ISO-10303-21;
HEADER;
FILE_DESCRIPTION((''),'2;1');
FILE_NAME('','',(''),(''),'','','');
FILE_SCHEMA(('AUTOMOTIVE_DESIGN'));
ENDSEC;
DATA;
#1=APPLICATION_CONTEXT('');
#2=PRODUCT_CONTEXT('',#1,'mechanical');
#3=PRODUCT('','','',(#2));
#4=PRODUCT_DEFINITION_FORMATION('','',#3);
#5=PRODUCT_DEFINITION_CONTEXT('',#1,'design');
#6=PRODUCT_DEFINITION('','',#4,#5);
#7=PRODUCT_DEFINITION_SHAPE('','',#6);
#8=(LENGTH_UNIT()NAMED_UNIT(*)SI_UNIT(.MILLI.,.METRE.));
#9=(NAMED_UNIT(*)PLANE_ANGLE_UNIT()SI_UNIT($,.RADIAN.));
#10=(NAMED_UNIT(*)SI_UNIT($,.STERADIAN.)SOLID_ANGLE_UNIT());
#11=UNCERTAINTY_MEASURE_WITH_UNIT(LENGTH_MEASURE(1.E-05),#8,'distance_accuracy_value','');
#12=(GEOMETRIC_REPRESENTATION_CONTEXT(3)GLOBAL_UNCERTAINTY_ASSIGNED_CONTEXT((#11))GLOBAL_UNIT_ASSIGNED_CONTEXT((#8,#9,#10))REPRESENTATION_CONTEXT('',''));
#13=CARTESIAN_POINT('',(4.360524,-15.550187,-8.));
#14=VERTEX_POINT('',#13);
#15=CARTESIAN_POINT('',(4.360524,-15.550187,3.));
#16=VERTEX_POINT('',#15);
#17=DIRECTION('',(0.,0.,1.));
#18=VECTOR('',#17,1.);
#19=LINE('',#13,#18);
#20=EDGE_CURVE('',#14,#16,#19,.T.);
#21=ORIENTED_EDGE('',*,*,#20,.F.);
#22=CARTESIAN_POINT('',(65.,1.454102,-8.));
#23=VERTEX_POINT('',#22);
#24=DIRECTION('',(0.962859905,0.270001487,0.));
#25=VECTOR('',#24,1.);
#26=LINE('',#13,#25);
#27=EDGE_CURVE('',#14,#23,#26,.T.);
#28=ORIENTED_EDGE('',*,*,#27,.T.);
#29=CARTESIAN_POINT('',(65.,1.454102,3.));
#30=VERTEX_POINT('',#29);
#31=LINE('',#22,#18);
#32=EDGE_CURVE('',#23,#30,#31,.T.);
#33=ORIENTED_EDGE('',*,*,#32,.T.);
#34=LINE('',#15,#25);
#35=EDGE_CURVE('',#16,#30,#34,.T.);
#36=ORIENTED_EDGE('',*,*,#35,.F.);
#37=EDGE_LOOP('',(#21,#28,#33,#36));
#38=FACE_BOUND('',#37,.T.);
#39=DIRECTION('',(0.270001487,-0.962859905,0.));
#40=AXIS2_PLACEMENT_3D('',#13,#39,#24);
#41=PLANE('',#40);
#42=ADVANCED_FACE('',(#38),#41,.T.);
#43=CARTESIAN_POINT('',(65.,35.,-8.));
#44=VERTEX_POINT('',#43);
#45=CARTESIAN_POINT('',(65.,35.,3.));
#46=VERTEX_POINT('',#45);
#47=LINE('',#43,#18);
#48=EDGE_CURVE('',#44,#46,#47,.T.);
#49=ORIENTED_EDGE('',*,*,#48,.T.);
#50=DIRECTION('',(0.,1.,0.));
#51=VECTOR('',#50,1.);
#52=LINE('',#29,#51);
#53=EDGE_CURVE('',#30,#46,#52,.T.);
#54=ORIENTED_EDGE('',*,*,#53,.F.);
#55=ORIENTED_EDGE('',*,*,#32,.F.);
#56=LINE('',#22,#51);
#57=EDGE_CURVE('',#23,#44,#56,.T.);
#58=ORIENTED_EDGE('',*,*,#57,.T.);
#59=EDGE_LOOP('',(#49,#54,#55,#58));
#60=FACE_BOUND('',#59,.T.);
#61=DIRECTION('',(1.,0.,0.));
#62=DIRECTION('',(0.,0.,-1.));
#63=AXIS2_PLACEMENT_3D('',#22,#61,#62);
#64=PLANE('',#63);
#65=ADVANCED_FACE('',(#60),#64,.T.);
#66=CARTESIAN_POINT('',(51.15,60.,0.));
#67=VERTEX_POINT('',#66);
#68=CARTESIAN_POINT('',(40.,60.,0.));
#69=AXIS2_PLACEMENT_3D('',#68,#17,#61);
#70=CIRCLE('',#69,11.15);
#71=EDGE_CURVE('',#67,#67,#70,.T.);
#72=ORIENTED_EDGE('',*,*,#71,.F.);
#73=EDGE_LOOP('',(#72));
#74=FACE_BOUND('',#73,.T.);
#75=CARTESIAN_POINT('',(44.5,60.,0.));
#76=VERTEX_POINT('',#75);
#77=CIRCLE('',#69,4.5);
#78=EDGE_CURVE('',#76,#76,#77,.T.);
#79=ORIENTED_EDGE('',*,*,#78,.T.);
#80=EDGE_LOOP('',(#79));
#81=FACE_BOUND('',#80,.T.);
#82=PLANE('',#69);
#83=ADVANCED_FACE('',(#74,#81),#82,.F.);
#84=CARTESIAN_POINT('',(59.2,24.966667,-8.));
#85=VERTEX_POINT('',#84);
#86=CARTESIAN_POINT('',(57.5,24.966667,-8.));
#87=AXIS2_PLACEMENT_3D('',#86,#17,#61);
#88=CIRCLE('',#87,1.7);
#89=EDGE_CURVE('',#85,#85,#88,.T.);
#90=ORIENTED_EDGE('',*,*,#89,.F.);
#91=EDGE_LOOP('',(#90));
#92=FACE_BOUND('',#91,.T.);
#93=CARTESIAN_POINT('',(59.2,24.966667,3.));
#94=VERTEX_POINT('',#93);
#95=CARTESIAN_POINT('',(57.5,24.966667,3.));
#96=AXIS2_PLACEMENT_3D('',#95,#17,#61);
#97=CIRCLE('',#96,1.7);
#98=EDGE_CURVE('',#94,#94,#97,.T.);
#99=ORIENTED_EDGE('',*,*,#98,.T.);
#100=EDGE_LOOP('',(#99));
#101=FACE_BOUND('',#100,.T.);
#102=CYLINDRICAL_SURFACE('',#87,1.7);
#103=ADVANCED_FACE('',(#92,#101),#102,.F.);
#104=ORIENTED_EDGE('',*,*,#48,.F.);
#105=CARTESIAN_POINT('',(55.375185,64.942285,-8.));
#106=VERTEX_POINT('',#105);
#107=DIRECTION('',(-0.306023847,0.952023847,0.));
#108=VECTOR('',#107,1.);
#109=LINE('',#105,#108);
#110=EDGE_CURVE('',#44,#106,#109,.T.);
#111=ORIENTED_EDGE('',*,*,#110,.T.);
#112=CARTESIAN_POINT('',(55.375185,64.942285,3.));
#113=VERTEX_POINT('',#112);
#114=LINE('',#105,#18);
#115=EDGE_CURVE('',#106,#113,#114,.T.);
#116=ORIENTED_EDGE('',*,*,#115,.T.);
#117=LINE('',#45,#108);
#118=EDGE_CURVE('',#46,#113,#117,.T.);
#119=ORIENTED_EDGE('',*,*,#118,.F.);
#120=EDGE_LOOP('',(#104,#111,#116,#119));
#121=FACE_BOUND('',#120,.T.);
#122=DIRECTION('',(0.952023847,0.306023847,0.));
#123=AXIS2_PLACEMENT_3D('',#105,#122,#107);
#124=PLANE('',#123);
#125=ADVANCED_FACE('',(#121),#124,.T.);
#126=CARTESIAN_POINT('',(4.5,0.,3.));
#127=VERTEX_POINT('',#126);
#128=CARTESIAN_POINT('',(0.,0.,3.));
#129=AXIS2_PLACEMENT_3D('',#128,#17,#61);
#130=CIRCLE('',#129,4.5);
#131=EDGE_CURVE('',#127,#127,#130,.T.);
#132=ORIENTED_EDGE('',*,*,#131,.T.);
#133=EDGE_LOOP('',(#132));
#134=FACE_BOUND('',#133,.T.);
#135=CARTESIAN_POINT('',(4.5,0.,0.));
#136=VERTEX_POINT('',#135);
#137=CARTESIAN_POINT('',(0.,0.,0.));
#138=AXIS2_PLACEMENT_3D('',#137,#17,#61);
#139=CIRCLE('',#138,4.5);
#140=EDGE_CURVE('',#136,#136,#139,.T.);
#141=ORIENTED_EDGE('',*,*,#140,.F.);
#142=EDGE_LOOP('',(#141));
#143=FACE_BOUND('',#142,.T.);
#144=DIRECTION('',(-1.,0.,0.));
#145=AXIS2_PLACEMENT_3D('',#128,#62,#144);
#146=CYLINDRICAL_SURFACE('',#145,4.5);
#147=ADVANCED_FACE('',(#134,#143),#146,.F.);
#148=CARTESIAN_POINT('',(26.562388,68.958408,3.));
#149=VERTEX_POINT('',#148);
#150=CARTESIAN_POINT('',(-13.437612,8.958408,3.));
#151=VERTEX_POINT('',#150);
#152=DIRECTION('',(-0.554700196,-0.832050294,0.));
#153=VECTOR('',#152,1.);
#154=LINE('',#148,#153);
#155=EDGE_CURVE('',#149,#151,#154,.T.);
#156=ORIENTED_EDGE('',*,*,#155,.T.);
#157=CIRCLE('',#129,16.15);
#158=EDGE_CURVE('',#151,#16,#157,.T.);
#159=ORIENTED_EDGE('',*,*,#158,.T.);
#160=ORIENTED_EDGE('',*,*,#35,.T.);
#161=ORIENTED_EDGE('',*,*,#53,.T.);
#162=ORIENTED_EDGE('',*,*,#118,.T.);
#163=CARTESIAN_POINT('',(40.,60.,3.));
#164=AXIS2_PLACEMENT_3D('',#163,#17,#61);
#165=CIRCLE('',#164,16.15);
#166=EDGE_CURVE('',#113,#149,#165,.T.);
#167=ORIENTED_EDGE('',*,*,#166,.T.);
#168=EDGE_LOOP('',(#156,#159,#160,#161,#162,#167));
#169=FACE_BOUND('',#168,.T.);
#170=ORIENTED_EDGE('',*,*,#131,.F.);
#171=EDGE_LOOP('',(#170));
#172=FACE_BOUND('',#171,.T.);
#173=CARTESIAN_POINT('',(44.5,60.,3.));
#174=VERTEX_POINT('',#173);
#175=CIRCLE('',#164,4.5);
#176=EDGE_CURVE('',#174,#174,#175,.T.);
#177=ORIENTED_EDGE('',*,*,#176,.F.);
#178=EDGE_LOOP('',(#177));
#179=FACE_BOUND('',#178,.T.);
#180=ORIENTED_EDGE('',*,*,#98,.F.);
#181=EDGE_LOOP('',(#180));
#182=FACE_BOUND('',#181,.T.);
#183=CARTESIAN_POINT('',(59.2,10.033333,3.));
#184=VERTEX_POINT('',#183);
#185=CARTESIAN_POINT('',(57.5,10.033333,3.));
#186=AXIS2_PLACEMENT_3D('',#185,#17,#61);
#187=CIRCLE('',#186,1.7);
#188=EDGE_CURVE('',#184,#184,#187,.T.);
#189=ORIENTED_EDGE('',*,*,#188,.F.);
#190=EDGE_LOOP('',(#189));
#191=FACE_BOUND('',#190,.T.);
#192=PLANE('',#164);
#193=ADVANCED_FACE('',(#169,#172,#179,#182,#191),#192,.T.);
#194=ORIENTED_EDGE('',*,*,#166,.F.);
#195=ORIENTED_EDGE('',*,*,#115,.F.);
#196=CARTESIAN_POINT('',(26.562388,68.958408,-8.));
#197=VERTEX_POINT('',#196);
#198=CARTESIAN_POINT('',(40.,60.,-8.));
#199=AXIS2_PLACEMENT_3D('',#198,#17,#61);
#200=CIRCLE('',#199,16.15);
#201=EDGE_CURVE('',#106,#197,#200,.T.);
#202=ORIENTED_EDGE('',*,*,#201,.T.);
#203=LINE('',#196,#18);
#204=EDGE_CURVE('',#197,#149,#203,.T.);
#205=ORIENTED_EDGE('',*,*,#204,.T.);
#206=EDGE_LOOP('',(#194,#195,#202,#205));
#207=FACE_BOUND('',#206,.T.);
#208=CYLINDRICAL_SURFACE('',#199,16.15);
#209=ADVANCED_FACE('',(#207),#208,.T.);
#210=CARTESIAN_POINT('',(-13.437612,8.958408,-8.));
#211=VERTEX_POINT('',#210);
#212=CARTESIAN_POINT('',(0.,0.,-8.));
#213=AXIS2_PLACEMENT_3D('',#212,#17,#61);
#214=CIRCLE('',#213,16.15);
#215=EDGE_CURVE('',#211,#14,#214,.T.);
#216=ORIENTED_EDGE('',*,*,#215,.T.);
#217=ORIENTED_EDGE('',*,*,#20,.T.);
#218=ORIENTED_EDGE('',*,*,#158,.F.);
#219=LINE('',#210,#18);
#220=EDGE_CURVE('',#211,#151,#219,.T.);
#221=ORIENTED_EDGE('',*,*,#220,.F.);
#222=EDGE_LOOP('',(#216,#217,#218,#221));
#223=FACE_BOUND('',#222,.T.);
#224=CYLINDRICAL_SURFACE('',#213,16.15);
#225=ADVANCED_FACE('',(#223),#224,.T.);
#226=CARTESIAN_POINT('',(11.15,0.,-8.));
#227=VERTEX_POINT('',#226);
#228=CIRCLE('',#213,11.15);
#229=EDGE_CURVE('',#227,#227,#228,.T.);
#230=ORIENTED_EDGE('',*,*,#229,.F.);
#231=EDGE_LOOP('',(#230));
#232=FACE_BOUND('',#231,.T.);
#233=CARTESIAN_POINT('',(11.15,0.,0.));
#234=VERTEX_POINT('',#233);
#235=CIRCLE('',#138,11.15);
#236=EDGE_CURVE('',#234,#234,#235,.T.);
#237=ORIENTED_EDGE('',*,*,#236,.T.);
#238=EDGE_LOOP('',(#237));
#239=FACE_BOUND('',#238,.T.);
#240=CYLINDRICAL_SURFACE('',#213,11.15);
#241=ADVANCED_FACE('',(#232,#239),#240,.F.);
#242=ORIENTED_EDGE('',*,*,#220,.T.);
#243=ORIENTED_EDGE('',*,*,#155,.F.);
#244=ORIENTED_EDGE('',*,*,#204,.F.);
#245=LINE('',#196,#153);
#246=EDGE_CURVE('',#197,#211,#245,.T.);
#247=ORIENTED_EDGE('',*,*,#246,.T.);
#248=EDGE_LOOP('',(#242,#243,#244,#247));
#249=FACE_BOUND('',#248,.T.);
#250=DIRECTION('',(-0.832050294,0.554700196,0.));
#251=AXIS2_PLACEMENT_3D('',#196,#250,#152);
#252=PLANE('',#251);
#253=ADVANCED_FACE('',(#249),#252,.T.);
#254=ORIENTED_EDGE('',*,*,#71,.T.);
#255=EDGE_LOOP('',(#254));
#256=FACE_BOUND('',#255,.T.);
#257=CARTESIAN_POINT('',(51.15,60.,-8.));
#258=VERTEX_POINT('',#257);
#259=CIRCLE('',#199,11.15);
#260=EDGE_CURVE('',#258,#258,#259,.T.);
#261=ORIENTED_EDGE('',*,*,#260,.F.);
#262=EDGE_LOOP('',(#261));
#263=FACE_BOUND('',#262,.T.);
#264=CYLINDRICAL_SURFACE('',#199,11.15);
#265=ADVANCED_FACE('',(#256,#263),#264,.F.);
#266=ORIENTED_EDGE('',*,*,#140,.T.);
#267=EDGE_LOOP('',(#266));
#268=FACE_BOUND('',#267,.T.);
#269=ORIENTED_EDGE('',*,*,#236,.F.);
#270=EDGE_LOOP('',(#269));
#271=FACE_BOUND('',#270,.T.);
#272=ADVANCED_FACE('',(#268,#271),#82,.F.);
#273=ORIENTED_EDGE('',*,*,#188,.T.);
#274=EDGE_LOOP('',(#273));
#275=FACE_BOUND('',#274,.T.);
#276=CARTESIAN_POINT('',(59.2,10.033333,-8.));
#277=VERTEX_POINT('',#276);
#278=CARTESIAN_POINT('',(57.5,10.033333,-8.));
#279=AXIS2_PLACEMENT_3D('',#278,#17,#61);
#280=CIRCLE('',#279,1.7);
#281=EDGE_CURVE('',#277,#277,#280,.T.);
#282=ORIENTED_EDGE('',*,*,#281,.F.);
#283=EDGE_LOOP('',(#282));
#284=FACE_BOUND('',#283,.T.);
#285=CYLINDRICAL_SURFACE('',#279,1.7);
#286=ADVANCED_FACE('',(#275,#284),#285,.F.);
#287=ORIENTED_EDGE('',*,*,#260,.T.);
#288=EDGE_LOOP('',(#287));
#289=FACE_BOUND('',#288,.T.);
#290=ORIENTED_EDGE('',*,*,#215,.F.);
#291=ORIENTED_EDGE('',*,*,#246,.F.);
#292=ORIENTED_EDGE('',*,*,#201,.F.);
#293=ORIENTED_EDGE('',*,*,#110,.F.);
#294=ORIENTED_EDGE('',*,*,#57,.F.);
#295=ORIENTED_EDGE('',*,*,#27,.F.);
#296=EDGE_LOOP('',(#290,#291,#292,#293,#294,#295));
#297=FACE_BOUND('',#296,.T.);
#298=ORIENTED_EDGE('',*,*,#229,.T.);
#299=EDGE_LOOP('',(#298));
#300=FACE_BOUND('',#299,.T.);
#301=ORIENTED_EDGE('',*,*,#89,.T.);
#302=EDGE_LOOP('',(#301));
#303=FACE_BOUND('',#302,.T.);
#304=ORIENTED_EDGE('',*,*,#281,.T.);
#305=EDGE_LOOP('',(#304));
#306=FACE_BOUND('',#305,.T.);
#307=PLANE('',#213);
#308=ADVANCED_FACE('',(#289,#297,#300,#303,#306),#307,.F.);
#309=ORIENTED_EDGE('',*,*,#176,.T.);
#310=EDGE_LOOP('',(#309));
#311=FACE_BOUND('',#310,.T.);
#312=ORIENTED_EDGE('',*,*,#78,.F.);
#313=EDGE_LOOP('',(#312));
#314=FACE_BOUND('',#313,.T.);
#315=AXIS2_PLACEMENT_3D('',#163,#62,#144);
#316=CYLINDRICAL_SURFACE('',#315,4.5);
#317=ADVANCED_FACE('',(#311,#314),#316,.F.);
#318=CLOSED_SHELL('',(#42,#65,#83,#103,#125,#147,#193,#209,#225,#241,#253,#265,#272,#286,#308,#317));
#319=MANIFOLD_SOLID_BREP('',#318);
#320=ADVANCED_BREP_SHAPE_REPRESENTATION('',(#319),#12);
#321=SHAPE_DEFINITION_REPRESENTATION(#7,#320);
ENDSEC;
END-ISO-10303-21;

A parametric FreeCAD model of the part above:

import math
import FreeCAD as App
import Part
import Sketcher
Q = App.Units.Quantity

doc = App.newDocument("Part")
body = doc.addObject("PartDesign::Body", "Body")

sketch1 = body.newObject("Sketcher::SketchObject", "Sketch")
sketch1.AttachmentSupport = (doc.getObject("XY_Plane"), [""])
sketch1.MapMode = "FlatFace"
sketch1.addGeometry(Part.LineSegment(App.Vector(65, 1.5, 0), App.Vector(65, 35, 0)), False)
sketch1.addGeometry(Part.LineSegment(App.Vector(65, 35, 0), App.Vector(55.4, 64.9, 0)), False)
sketch1.addGeometry(Part.ArcOfCircle(Part.Circle(App.Vector(40, 60, 0), App.Vector(0, 0, 1), 16.2), math.radians(18), math.radians(146)), False)
sketch1.addGeometry(Part.LineSegment(App.Vector(26.6, 69, 0), App.Vector(-13.4, 9, 0)), False)
sketch1.addGeometry(Part.ArcOfCircle(Part.Circle(App.Vector(0, 0, 0), App.Vector(0, 0, 1), 16.1), math.radians(146), math.radians(286)), False)
sketch1.addGeometry(Part.LineSegment(App.Vector(4.4, -15.6, 0), App.Vector(65, 1.5, 0)), False)
sketch1.addGeometry(Part.Circle(App.Vector(0, 0, 0), App.Vector(0, 0, 1), 11.2), False)
sketch1.addGeometry(Part.Circle(App.Vector(57.5, 10, 0), App.Vector(0, 0, 1), 1.7), False)
sketch1.addGeometry(Part.Circle(App.Vector(57.5, 25, 0), App.Vector(0, 0, 1), 1.7), False)
sketch1.addGeometry(Part.Circle(App.Vector(40, 60, 0), App.Vector(0, 0, 1), 11.2), False)
sketch1.addConstraint(Sketcher.Constraint("Coincident", 0, 2, 1, 1))
sketch1.addConstraint(Sketcher.Constraint("Tangent", 1, 2, 2, 1))
sketch1.addConstraint(Sketcher.Constraint("Tangent", 2, 2, 3, 1))
sketch1.addConstraint(Sketcher.Constraint("Tangent", 3, 2, 4, 1))
sketch1.addConstraint(Sketcher.Constraint("Tangent", 4, 2, 5, 1))
sketch1.addConstraint(Sketcher.Constraint("Coincident", 5, 2, 0, 1))
sketch1.addConstraint(Sketcher.Constraint("Vertical", 0))
sketch1.addConstraint(Sketcher.Constraint("Coincident", 4, 3, -1, 1))
sketch1.addConstraint(Sketcher.Constraint("Coincident", 6, 3, -1, 1))
sketch1.addConstraint(Sketcher.Constraint("Coincident", 9, 3, 2, 3))
sketch1.addConstraint(Sketcher.Constraint("Equal", 2, 4))
sketch1.addConstraint(Sketcher.Constraint("Equal", 7, 8))
sketch1.addConstraint(Sketcher.Constraint("Equal", 6, 9))
sketch1.addConstraint(Sketcher.Constraint("Vertical", 7, 3, 8, 3))
sketch1.addConstraint(Sketcher.Constraint("Diameter", 6, Q("22.3 mm")))
sketch1.addConstraint(Sketcher.Constraint("Diameter", 7, Q("3.4 mm")))
sketch1.addConstraint(Sketcher.Constraint("Radius", 2, Q("16.15 mm")))
sketch1.addConstraint(Sketcher.Constraint("DistanceX", -1, 1, 2, 3, Q("40 mm")))
sketch1.addConstraint(Sketcher.Constraint("DistanceY", -1, 1, 2, 3, Q("60 mm")))
sketch1.addConstraint(Sketcher.Constraint("DistanceX", -1, 1, 0, 2, Q("65 mm")))
sketch1.addConstraint(Sketcher.Constraint("DistanceY", -1, 1, 0, 2, Q("35 mm")))
sketch1.addConstraint(Sketcher.Constraint("DistanceX", -1, 1, 7, 3, Q("57.5 mm")))
sketch1.addConstraint(Sketcher.Constraint("DistanceY", 0, 1, 0, 2, Q("33.545898 mm")))
sketch1.addConstraint(Sketcher.Constraint("DistanceY", 8, 3, 1, 2, Q("39.975618 mm")))
sketch1.addConstraint(Sketcher.Constraint("DistanceY", 7, 3, 1, 2, Q("54.908952 mm")))
pad1 = body.newObject("PartDesign::Pad", "Pad")
pad1.Profile = sketch1
pad1.Length = 8
pad1.Reversed = True

sketch2 = body.newObject("Sketcher::SketchObject", "Sketch001")
sketch2.AttachmentSupport = (doc.getObject("XY_Plane"), [""])
sketch2.MapMode = "FlatFace"
sketch2.AttachmentOffset = App.Placement(App.Vector(0, 0, 3), App.Rotation())
sketch2.addGeometry(Part.LineSegment(App.Vector(4.4, -15.6, 0), App.Vector(65, 1.5, 0)), False)
sketch2.addGeometry(Part.LineSegment(App.Vector(65, 1.5, 0), App.Vector(65, 35, 0)), False)
sketch2.addGeometry(Part.LineSegment(App.Vector(65, 35, 0), App.Vector(55.4, 64.9, 0)), False)
sketch2.addGeometry(Part.ArcOfCircle(Part.Circle(App.Vector(40, 60, 0), App.Vector(0, 0, 1), 16.2), math.radians(18), math.radians(146)), False)
sketch2.addGeometry(Part.LineSegment(App.Vector(26.6, 69, 0), App.Vector(-13.4, 9, 0)), False)
sketch2.addGeometry(Part.ArcOfCircle(Part.Circle(App.Vector(0, 0, 0), App.Vector(0, 0, 1), 16.1), math.radians(146), math.radians(286)), False)
sketch2.addGeometry(Part.Circle(App.Vector(0, 0, 0), App.Vector(0, 0, 1), 4.5), False)
sketch2.addGeometry(Part.Circle(App.Vector(57.5, 10, 0), App.Vector(0, 0, 1), 1.7), False)
sketch2.addGeometry(Part.Circle(App.Vector(57.5, 25, 0), App.Vector(0, 0, 1), 1.7), False)
sketch2.addGeometry(Part.Circle(App.Vector(40, 60, 0), App.Vector(0, 0, 1), 4.5), False)
sketch2.addConstraint(Sketcher.Constraint("Coincident", 0, 2, 1, 1))
sketch2.addConstraint(Sketcher.Constraint("Coincident", 1, 2, 2, 1))
sketch2.addConstraint(Sketcher.Constraint("Tangent", 2, 2, 3, 1))
sketch2.addConstraint(Sketcher.Constraint("Tangent", 3, 2, 4, 1))
sketch2.addConstraint(Sketcher.Constraint("Tangent", 4, 2, 5, 1))
sketch2.addConstraint(Sketcher.Constraint("Tangent", 5, 2, 0, 1))
sketch2.addConstraint(Sketcher.Constraint("Vertical", 1))
sketch2.addConstraint(Sketcher.Constraint("Coincident", 5, 3, -1, 1))
sketch2.addConstraint(Sketcher.Constraint("Coincident", 6, 3, -1, 1))
sketch2.addConstraint(Sketcher.Constraint("Coincident", 9, 3, 3, 3))
sketch2.addConstraint(Sketcher.Constraint("Equal", 3, 5))
sketch2.addConstraint(Sketcher.Constraint("Equal", 7, 8))
sketch2.addConstraint(Sketcher.Constraint("Equal", 6, 9))
sketch2.addConstraint(Sketcher.Constraint("Vertical", 7, 3, 8, 3))
sketch2.addConstraint(Sketcher.Constraint("Diameter", 6, Q("9 mm")))
sketch2.addConstraint(Sketcher.Constraint("Diameter", 7, Q("3.4 mm")))
sketch2.addConstraint(Sketcher.Constraint("Radius", 3, Q("16.15 mm")))
sketch2.addConstraint(Sketcher.Constraint("DistanceX", -1, 1, 3, 3, Q("40 mm")))
sketch2.addConstraint(Sketcher.Constraint("DistanceY", -1, 1, 3, 3, Q("60 mm")))
sketch2.addConstraint(Sketcher.Constraint("DistanceX", -1, 1, 0, 2, Q("65 mm")))
sketch2.addConstraint(Sketcher.Constraint("DistanceY", -1, 1, 1, 2, Q("35 mm")))
sketch2.addConstraint(Sketcher.Constraint("DistanceX", -1, 1, 7, 3, Q("57.5 mm")))
sketch2.addConstraint(Sketcher.Constraint("DistanceY", 1, 1, 1, 2, Q("33.545898 mm")))
sketch2.addConstraint(Sketcher.Constraint("DistanceY", 0, 2, 7, 3, Q("8.579231 mm")))
sketch2.addConstraint(Sketcher.Constraint("DistanceY", 8, 3, 2, 2, Q("39.975618 mm")))
pad2 = body.newObject("PartDesign::Pad", "Pad001")
pad2.Profile = sketch2
pad2.Length = 3
pad2.Reversed = True

doc.recompute()
